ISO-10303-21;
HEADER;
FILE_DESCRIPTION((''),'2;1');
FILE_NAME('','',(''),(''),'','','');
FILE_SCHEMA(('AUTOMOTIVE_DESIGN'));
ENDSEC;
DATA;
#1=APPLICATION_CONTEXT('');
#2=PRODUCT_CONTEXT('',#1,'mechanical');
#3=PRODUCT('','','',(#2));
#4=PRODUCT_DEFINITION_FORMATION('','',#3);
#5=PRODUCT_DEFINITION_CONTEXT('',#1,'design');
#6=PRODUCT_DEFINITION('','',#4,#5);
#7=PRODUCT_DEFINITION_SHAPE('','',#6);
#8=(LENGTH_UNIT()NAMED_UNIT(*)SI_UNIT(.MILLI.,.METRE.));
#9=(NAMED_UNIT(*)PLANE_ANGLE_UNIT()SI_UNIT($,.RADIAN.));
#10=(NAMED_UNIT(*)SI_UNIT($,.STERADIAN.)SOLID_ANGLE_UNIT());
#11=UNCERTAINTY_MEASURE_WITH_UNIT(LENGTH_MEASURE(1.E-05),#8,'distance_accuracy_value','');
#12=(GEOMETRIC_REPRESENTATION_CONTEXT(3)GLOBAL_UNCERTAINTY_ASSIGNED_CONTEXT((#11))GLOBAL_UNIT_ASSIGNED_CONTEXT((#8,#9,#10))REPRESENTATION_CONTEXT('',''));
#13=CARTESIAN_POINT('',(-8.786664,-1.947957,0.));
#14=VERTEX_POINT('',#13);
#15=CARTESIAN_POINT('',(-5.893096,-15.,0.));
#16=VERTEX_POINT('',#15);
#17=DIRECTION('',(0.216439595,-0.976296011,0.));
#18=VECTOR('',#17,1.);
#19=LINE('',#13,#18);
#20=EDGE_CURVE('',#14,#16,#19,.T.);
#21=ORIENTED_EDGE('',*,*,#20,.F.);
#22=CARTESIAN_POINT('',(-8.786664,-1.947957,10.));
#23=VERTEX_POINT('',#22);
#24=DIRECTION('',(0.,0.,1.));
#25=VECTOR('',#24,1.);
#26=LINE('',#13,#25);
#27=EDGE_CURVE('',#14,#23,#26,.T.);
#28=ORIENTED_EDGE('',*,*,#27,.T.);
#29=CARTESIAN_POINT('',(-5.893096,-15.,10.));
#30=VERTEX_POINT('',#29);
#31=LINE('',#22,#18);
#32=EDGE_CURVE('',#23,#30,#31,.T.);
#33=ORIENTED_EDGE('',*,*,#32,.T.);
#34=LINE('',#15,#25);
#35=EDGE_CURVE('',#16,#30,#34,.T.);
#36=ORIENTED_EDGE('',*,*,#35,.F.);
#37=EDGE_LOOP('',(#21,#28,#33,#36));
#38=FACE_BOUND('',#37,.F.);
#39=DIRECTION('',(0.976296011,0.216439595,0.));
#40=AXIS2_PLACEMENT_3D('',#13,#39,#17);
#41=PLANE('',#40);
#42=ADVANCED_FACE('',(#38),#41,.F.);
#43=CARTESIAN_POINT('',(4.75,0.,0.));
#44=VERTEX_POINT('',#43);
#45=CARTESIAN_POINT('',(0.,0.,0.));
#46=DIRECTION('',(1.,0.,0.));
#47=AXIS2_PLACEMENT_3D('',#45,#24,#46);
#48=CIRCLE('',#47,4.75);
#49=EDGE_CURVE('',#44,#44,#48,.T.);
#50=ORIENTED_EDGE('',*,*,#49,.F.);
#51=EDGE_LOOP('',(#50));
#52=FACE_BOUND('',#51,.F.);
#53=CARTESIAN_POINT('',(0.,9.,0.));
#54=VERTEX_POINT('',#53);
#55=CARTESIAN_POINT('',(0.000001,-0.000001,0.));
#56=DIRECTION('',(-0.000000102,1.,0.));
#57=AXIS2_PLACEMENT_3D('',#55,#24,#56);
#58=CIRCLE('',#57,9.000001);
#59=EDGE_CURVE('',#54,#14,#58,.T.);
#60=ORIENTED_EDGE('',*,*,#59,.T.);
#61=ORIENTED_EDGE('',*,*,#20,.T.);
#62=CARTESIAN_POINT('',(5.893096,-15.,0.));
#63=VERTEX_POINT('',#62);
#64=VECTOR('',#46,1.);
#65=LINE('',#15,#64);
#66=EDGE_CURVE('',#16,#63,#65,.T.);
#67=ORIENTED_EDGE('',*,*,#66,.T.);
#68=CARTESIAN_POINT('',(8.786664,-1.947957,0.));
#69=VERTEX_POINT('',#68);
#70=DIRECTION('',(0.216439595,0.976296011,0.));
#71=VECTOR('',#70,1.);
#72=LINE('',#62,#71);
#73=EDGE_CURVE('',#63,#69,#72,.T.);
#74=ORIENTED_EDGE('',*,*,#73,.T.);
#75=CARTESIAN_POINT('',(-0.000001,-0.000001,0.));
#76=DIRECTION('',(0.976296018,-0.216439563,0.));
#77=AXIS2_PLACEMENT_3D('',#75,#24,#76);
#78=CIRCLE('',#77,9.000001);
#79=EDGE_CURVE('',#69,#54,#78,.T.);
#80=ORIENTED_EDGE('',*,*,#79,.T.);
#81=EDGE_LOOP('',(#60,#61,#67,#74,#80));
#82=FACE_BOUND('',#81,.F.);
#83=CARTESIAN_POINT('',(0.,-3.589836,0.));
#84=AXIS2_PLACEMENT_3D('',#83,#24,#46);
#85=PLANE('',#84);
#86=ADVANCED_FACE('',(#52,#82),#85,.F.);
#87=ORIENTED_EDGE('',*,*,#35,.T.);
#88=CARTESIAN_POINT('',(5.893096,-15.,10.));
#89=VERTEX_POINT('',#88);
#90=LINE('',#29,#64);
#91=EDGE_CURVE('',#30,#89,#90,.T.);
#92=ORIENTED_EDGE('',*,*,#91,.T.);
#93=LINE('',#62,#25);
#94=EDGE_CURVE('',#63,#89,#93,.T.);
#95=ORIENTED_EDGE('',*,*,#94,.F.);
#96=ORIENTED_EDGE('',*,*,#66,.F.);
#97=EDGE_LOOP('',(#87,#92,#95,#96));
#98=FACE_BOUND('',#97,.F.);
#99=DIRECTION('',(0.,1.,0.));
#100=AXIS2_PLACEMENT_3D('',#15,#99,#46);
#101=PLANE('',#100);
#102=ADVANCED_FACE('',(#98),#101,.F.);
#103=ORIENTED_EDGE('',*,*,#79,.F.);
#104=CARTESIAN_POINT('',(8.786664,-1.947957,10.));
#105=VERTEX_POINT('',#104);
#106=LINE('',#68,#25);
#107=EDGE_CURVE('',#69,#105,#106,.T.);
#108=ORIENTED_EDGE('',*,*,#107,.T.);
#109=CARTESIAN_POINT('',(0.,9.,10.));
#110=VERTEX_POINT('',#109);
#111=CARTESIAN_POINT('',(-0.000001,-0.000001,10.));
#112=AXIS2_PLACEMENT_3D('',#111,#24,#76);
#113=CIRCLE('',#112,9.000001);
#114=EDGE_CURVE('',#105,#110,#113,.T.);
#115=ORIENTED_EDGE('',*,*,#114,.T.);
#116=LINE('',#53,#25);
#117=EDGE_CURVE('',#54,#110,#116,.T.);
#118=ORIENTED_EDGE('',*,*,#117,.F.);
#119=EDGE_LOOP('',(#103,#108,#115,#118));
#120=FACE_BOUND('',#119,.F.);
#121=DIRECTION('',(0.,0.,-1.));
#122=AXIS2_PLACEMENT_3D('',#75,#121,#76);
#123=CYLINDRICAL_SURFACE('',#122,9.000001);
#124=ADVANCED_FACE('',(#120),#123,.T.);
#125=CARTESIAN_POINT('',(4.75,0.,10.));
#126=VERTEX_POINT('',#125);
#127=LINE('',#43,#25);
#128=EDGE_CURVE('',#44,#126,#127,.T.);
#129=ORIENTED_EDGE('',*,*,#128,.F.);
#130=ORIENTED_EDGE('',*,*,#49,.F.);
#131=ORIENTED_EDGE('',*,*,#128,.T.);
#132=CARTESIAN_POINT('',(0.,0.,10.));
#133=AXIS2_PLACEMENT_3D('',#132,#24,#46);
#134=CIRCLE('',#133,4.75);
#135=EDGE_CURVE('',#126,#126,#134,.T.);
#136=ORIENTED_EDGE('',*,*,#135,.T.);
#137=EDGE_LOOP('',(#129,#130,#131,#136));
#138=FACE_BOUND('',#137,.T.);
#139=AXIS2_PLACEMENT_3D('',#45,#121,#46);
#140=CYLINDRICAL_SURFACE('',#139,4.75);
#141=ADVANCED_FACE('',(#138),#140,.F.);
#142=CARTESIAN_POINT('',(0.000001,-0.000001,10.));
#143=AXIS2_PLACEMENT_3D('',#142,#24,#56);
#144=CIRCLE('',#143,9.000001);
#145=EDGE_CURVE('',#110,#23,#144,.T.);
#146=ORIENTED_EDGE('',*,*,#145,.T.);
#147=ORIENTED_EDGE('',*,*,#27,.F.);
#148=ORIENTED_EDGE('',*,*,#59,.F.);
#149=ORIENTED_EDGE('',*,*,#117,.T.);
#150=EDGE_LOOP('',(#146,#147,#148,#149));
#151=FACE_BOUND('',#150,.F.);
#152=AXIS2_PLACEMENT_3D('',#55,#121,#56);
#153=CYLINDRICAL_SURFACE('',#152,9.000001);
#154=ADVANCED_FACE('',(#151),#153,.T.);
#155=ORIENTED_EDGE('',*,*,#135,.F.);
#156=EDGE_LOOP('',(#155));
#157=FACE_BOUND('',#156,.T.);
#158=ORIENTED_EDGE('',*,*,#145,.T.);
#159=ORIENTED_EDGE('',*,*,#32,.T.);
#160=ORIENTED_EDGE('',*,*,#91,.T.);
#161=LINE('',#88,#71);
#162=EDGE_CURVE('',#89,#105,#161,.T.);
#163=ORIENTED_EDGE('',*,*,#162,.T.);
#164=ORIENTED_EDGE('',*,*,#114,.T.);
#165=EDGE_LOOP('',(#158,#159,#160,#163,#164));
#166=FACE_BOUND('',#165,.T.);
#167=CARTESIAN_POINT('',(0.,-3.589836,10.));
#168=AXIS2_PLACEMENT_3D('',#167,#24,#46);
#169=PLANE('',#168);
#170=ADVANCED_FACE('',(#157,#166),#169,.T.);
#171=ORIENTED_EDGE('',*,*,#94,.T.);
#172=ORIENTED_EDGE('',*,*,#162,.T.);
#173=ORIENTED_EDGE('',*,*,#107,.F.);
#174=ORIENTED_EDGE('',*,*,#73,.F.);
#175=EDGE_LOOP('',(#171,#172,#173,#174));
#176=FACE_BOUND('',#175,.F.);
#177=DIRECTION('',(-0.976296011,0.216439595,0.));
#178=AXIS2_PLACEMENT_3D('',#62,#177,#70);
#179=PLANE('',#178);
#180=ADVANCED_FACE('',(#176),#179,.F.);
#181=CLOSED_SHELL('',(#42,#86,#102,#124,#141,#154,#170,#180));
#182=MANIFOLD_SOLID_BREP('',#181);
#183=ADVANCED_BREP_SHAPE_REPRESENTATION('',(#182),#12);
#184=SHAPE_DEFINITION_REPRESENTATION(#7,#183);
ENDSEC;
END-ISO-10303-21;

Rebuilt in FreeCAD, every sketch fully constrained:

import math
import FreeCAD as App
import Part
import Sketcher

V = App.Vector
Q = App.Units.Quantity

doc = App.newDocument("Part")
body = doc.addObject("PartDesign::Body", "Body")

# Sketch on XY plane
sketch1 = body.newObject("Sketcher::SketchObject", "Sketch")
sketch1.AttachmentSupport = (doc.getObject("XY_Plane"), [""])
sketch1.MapMode = "FlatFace"
sketch1.addGeometry([
    Part.ArcOfCircle(Part.Circle(V(0, 0, 0), V(0, 0, 1), 9), math.radians(-12), math.radians(90)),  # 0
    Part.ArcOfCircle(Part.Circle(V(0, 0, 0), V(0, 0, 1), 9), math.radians(90), math.radians(192)),  # 1
    Part.LineSegment(V(-8.8, -1.9, 0), V(-5.9, -15, 0)),  # 2
    Part.LineSegment(V(-5.9, -15, 0), V(5.9, -15, 0)),  # 3
    Part.LineSegment(V(5.9, -15, 0), V(8.8, -1.9, 0)),  # 4
    Part.Circle(V(0, 0, 0), V(0, 0, 1), 4.8),  # 5
], False)
sketch1.addConstraint([
    Sketcher.Constraint("Tangent", 0, 2, 1, 1),
    Sketcher.Constraint("Tangent", 1, 2, 2, 1),
    Sketcher.Constraint("Coincident", 2, 2, 3, 1),
    Sketcher.Constraint("Coincident", 3, 2, 4, 1),
    Sketcher.Constraint("Tangent", 4, 2, 0, 1),
    Sketcher.Constraint("Horizontal", 3),
    Sketcher.Constraint("Coincident", 0, 3, -1, 1),
    Sketcher.Constraint("Coincident", 5, 3, -1, 1),
    Sketcher.Constraint("Equal", 0, 1),
    Sketcher.Constraint("PointOnObject", 0, 2, -2),
    Sketcher.Constraint("Horizontal", 1, 2, 4, 2),
    Sketcher.Constraint("Radius", 0, Q("9.000001 mm")),
    Sketcher.Constraint("Diameter", 5, Q("9.5 mm")),
    Sketcher.Constraint("DistanceY", 2, 2, -1, 1, Q("15 mm")),
    Sketcher.Constraint("Angle", 2, Q("-77.500001 deg")),
])
pad1 = body.newObject("PartDesign::Pad", "Pad")
pad1.Profile = sketch1
pad1.Length = 10

doc.recompute()
